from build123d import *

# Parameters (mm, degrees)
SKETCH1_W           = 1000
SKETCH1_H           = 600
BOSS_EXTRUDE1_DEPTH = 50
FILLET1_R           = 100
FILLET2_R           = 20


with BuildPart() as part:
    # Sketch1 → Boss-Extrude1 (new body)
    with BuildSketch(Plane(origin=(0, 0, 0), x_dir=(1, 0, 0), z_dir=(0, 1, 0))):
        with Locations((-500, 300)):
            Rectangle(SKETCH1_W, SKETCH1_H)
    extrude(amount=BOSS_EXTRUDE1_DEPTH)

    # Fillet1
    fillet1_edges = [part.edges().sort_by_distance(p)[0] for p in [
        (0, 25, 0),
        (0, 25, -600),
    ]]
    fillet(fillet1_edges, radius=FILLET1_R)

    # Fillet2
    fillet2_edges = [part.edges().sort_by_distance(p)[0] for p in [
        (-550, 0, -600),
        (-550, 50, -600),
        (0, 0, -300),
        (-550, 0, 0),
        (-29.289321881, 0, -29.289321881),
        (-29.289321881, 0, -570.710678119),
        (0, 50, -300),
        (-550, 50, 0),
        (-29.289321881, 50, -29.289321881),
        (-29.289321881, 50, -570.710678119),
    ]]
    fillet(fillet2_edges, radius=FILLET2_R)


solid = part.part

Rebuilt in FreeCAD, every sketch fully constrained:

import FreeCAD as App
import Part
import Sketcher
Q = App.Units.Quantity


def edges_at(feature, points):
    """Names of the edges that pass closest to the given points."""
    edges = feature.Shape.Edges
    near = lambda p: min(range(len(edges)), key=lambda i: edges[i].distToShape(Part.Vertex(*p))[0])
    return sorted({f"Edge{near(p) + 1}" for p in points})

doc = App.newDocument("Part")
params = doc.addObject("Spreadsheet::Sheet", "Params")
for row, (alias, value) in enumerate([
    ("sketch1_width", "1000 mm"),
    ("sketch1_height", "600 mm"),
    ("pad1_length", "50 mm"),
    ("fillet_radius", "100 mm"),
    ("fillet2_radius", "20 mm"),
], start=1):
    params.set(f"A{row}", alias)
    params.set(f"B{row}", "=" + value)
    params.setAlias(f"B{row}", alias)

body = doc.addObject("PartDesign::Body", "Body")

# Sketch on XZ plane
sketch1 = body.newObject("Sketcher::SketchObject", "Sketch")
sketch1.AttachmentSupport = (doc.getObject("XZ_Plane"), [""])
sketch1.MapMode = "FlatFace"
sketch1.addGeometry([
    Part.LineSegment(App.Vector(-1000, -600, 0), App.Vector(-1000, 0, 0)),
    Part.LineSegment(App.Vector(-1000, 0, 0), App.Vector(0, 0, 0)),
    Part.LineSegment(App.Vector(0, 0, 0), App.Vector(0, -600, 0)),
    Part.LineSegment(App.Vector(0, -600, 0), App.Vector(-1000, -600, 0)),
], False)
sketch1.addConstraint([
    Sketcher.Constraint("Coincident", 0, 2, 1, 1),
    Sketcher.Constraint("Coincident", 1, 2, 2, 1),
    Sketcher.Constraint("Coincident", 2, 2, 3, 1),
    Sketcher.Constraint("Coincident", 3, 2, 0, 1),
    Sketcher.Constraint("Vertical", 0),
    Sketcher.Constraint("Horizontal", 1),
    Sketcher.Constraint("Vertical", 2),
    Sketcher.Constraint("Horizontal", 3),
    Sketcher.Constraint("Coincident", 1, 2, -1, 1),
    Sketcher.Constraint("DistanceX", 1, 1, 1, 2, Q("1000 mm")),
    Sketcher.Constraint("DistanceY", 0, 1, 0, 2, Q("600 mm")),
])
sketch1.setExpression("Constraints[9]", "Params.sketch1_width")
sketch1.setExpression("Constraints[10]", "Params.sketch1_height")
pad1 = body.newObject("PartDesign::Pad", "Pad")
pad1.Profile = sketch1
pad1.setExpression("Length", "Params.pad1_length")
pad1.Reversed = True
doc.recompute()

fillet = body.newObject("PartDesign::Fillet", "Fillet")
fillet.Base = (pad1, edges_at(pad1, [(0, 25, 0), (0, 25, -600)]))
fillet.setExpression("Radius", "Params.fillet_radius")
doc.recompute()

fillet2 = body.newObject("PartDesign::Fillet", "Fillet001")
fillet2.Base = (fillet, edges_at(fillet, [
    (-550, 0, -600),
    (-550, 50, -600),
    (0, 0, -300),
    (-550, 0, 0),
    (-29.289, 0, -29.289),
    (-29.289, 0, -570.711),
    (0, 50, -300),
    (-550, 50, 0),
    (-29.289, 50, -29.289),
    (-29.289, 50, -570.711),
]))
fillet2.setExpression("Radius", "Params.fillet2_radius")

doc.recompute()
